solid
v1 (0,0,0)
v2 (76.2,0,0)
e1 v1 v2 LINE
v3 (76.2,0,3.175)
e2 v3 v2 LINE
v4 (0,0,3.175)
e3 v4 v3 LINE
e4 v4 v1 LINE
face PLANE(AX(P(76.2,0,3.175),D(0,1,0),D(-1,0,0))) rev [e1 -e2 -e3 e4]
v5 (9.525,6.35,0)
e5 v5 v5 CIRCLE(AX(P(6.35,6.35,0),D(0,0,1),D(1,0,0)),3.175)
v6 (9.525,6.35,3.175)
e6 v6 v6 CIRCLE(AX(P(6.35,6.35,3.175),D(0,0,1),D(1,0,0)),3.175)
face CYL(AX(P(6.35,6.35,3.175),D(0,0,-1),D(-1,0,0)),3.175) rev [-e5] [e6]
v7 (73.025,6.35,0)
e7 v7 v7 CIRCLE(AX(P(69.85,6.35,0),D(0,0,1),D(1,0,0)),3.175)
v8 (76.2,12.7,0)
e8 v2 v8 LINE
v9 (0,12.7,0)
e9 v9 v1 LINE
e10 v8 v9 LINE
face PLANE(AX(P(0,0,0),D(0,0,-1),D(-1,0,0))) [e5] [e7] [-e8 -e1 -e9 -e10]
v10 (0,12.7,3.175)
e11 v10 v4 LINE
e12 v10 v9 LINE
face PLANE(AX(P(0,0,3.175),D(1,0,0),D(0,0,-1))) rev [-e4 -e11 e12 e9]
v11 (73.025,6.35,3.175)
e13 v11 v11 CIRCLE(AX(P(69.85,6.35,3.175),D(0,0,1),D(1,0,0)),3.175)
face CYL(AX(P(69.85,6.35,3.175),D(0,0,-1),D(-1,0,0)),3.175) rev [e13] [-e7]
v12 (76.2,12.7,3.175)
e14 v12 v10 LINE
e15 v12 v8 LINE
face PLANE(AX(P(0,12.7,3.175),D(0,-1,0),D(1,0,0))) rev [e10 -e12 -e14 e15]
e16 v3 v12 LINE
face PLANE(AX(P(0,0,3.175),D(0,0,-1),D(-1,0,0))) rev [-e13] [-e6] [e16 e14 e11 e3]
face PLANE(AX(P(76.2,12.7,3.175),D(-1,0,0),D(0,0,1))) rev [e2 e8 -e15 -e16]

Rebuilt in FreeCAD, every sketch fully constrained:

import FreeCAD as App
import Part
import Sketcher
from FreeCAD import Vector
Q = App.Units.Quantity


def add_polygon(sketch, points):
    """Adds a closed chain of lines whose ends are joined by coincident constraints."""
    first, n = sketch.GeometryCount, len(points)
    for a, b in zip(points, points[1:] + points[:1]):
        sketch.addGeometry(Part.LineSegment(App.Vector(*a, 0), App.Vector(*b, 0)), False)
    for i in range(n):
        sketch.addConstraint(Sketcher.Constraint("Coincident", first + i, 2, first + (i + 1) % n, 1))

doc = App.newDocument("Part")
body = doc.addObject("PartDesign::Body", "Body")

# Sketch on XY plane
sketch1 = body.newObject("Sketcher::SketchObject", "Sketch")
sketch1.AttachmentSupport = (doc.getObject("XY_Plane"), [""])
sketch1.MapMode = "FlatFace"
add_polygon(sketch1, [(0, 12.7), (0, 0), (76.2, 0), (76.2, 12.7)])  # lines 0-3
sketch1.addGeometry(Part.Circle(Vector(6.3, 6.3, 0), Vector(0, 0, 1), 3.2), False)  # 4
sketch1.addGeometry(Part.Circle(Vector(69.8, 6.3, 0), Vector(0, 0, 1), 3.2), False)  # 5
sketch1.addConstraint(Sketcher.Constraint("Vertical", 0))
sketch1.addConstraint(Sketcher.Constraint("Horizontal", 1))
sketch1.addConstraint(Sketcher.Constraint("Vertical", 2))
sketch1.addConstraint(Sketcher.Constraint("Horizontal", 3))
sketch1.addConstraint(Sketcher.Constraint("Coincident", 0, 2, -1, 1))
sketch1.addConstraint(Sketcher.Constraint("Equal", 4, 5))
sketch1.addConstraint(Sketcher.Constraint("Horizontal", 4, 3, 5, 3))
sketch1.addConstraint(Sketcher.Constraint("Diameter", 4, Q("0.25 in")))
sketch1.addConstraint(Sketcher.Constraint("DistanceX", 1, 1, 1, 2, Q("3 in")))
sketch1.addConstraint(Sketcher.Constraint("DistanceY", 0, 2, 0, 1, Q("0.5 in")))
sketch1.addConstraint(Sketcher.Constraint("DistanceX", 4, 3, 5, 3, Q("2.5 in")))
sketch1.addConstraint(Sketcher.Constraint("DistanceX", -1, 1, 4, 3, Q("0.25 in")))
sketch1.addConstraint(Sketcher.Constraint("DistanceY", -1, 1, 4, 3, Q("0.25 in")))
pad1 = body.newObject("PartDesign::Pad", "Pad")
pad1.Profile = sketch1
pad1.Length = Q("0.125 in")

doc.recompute()
